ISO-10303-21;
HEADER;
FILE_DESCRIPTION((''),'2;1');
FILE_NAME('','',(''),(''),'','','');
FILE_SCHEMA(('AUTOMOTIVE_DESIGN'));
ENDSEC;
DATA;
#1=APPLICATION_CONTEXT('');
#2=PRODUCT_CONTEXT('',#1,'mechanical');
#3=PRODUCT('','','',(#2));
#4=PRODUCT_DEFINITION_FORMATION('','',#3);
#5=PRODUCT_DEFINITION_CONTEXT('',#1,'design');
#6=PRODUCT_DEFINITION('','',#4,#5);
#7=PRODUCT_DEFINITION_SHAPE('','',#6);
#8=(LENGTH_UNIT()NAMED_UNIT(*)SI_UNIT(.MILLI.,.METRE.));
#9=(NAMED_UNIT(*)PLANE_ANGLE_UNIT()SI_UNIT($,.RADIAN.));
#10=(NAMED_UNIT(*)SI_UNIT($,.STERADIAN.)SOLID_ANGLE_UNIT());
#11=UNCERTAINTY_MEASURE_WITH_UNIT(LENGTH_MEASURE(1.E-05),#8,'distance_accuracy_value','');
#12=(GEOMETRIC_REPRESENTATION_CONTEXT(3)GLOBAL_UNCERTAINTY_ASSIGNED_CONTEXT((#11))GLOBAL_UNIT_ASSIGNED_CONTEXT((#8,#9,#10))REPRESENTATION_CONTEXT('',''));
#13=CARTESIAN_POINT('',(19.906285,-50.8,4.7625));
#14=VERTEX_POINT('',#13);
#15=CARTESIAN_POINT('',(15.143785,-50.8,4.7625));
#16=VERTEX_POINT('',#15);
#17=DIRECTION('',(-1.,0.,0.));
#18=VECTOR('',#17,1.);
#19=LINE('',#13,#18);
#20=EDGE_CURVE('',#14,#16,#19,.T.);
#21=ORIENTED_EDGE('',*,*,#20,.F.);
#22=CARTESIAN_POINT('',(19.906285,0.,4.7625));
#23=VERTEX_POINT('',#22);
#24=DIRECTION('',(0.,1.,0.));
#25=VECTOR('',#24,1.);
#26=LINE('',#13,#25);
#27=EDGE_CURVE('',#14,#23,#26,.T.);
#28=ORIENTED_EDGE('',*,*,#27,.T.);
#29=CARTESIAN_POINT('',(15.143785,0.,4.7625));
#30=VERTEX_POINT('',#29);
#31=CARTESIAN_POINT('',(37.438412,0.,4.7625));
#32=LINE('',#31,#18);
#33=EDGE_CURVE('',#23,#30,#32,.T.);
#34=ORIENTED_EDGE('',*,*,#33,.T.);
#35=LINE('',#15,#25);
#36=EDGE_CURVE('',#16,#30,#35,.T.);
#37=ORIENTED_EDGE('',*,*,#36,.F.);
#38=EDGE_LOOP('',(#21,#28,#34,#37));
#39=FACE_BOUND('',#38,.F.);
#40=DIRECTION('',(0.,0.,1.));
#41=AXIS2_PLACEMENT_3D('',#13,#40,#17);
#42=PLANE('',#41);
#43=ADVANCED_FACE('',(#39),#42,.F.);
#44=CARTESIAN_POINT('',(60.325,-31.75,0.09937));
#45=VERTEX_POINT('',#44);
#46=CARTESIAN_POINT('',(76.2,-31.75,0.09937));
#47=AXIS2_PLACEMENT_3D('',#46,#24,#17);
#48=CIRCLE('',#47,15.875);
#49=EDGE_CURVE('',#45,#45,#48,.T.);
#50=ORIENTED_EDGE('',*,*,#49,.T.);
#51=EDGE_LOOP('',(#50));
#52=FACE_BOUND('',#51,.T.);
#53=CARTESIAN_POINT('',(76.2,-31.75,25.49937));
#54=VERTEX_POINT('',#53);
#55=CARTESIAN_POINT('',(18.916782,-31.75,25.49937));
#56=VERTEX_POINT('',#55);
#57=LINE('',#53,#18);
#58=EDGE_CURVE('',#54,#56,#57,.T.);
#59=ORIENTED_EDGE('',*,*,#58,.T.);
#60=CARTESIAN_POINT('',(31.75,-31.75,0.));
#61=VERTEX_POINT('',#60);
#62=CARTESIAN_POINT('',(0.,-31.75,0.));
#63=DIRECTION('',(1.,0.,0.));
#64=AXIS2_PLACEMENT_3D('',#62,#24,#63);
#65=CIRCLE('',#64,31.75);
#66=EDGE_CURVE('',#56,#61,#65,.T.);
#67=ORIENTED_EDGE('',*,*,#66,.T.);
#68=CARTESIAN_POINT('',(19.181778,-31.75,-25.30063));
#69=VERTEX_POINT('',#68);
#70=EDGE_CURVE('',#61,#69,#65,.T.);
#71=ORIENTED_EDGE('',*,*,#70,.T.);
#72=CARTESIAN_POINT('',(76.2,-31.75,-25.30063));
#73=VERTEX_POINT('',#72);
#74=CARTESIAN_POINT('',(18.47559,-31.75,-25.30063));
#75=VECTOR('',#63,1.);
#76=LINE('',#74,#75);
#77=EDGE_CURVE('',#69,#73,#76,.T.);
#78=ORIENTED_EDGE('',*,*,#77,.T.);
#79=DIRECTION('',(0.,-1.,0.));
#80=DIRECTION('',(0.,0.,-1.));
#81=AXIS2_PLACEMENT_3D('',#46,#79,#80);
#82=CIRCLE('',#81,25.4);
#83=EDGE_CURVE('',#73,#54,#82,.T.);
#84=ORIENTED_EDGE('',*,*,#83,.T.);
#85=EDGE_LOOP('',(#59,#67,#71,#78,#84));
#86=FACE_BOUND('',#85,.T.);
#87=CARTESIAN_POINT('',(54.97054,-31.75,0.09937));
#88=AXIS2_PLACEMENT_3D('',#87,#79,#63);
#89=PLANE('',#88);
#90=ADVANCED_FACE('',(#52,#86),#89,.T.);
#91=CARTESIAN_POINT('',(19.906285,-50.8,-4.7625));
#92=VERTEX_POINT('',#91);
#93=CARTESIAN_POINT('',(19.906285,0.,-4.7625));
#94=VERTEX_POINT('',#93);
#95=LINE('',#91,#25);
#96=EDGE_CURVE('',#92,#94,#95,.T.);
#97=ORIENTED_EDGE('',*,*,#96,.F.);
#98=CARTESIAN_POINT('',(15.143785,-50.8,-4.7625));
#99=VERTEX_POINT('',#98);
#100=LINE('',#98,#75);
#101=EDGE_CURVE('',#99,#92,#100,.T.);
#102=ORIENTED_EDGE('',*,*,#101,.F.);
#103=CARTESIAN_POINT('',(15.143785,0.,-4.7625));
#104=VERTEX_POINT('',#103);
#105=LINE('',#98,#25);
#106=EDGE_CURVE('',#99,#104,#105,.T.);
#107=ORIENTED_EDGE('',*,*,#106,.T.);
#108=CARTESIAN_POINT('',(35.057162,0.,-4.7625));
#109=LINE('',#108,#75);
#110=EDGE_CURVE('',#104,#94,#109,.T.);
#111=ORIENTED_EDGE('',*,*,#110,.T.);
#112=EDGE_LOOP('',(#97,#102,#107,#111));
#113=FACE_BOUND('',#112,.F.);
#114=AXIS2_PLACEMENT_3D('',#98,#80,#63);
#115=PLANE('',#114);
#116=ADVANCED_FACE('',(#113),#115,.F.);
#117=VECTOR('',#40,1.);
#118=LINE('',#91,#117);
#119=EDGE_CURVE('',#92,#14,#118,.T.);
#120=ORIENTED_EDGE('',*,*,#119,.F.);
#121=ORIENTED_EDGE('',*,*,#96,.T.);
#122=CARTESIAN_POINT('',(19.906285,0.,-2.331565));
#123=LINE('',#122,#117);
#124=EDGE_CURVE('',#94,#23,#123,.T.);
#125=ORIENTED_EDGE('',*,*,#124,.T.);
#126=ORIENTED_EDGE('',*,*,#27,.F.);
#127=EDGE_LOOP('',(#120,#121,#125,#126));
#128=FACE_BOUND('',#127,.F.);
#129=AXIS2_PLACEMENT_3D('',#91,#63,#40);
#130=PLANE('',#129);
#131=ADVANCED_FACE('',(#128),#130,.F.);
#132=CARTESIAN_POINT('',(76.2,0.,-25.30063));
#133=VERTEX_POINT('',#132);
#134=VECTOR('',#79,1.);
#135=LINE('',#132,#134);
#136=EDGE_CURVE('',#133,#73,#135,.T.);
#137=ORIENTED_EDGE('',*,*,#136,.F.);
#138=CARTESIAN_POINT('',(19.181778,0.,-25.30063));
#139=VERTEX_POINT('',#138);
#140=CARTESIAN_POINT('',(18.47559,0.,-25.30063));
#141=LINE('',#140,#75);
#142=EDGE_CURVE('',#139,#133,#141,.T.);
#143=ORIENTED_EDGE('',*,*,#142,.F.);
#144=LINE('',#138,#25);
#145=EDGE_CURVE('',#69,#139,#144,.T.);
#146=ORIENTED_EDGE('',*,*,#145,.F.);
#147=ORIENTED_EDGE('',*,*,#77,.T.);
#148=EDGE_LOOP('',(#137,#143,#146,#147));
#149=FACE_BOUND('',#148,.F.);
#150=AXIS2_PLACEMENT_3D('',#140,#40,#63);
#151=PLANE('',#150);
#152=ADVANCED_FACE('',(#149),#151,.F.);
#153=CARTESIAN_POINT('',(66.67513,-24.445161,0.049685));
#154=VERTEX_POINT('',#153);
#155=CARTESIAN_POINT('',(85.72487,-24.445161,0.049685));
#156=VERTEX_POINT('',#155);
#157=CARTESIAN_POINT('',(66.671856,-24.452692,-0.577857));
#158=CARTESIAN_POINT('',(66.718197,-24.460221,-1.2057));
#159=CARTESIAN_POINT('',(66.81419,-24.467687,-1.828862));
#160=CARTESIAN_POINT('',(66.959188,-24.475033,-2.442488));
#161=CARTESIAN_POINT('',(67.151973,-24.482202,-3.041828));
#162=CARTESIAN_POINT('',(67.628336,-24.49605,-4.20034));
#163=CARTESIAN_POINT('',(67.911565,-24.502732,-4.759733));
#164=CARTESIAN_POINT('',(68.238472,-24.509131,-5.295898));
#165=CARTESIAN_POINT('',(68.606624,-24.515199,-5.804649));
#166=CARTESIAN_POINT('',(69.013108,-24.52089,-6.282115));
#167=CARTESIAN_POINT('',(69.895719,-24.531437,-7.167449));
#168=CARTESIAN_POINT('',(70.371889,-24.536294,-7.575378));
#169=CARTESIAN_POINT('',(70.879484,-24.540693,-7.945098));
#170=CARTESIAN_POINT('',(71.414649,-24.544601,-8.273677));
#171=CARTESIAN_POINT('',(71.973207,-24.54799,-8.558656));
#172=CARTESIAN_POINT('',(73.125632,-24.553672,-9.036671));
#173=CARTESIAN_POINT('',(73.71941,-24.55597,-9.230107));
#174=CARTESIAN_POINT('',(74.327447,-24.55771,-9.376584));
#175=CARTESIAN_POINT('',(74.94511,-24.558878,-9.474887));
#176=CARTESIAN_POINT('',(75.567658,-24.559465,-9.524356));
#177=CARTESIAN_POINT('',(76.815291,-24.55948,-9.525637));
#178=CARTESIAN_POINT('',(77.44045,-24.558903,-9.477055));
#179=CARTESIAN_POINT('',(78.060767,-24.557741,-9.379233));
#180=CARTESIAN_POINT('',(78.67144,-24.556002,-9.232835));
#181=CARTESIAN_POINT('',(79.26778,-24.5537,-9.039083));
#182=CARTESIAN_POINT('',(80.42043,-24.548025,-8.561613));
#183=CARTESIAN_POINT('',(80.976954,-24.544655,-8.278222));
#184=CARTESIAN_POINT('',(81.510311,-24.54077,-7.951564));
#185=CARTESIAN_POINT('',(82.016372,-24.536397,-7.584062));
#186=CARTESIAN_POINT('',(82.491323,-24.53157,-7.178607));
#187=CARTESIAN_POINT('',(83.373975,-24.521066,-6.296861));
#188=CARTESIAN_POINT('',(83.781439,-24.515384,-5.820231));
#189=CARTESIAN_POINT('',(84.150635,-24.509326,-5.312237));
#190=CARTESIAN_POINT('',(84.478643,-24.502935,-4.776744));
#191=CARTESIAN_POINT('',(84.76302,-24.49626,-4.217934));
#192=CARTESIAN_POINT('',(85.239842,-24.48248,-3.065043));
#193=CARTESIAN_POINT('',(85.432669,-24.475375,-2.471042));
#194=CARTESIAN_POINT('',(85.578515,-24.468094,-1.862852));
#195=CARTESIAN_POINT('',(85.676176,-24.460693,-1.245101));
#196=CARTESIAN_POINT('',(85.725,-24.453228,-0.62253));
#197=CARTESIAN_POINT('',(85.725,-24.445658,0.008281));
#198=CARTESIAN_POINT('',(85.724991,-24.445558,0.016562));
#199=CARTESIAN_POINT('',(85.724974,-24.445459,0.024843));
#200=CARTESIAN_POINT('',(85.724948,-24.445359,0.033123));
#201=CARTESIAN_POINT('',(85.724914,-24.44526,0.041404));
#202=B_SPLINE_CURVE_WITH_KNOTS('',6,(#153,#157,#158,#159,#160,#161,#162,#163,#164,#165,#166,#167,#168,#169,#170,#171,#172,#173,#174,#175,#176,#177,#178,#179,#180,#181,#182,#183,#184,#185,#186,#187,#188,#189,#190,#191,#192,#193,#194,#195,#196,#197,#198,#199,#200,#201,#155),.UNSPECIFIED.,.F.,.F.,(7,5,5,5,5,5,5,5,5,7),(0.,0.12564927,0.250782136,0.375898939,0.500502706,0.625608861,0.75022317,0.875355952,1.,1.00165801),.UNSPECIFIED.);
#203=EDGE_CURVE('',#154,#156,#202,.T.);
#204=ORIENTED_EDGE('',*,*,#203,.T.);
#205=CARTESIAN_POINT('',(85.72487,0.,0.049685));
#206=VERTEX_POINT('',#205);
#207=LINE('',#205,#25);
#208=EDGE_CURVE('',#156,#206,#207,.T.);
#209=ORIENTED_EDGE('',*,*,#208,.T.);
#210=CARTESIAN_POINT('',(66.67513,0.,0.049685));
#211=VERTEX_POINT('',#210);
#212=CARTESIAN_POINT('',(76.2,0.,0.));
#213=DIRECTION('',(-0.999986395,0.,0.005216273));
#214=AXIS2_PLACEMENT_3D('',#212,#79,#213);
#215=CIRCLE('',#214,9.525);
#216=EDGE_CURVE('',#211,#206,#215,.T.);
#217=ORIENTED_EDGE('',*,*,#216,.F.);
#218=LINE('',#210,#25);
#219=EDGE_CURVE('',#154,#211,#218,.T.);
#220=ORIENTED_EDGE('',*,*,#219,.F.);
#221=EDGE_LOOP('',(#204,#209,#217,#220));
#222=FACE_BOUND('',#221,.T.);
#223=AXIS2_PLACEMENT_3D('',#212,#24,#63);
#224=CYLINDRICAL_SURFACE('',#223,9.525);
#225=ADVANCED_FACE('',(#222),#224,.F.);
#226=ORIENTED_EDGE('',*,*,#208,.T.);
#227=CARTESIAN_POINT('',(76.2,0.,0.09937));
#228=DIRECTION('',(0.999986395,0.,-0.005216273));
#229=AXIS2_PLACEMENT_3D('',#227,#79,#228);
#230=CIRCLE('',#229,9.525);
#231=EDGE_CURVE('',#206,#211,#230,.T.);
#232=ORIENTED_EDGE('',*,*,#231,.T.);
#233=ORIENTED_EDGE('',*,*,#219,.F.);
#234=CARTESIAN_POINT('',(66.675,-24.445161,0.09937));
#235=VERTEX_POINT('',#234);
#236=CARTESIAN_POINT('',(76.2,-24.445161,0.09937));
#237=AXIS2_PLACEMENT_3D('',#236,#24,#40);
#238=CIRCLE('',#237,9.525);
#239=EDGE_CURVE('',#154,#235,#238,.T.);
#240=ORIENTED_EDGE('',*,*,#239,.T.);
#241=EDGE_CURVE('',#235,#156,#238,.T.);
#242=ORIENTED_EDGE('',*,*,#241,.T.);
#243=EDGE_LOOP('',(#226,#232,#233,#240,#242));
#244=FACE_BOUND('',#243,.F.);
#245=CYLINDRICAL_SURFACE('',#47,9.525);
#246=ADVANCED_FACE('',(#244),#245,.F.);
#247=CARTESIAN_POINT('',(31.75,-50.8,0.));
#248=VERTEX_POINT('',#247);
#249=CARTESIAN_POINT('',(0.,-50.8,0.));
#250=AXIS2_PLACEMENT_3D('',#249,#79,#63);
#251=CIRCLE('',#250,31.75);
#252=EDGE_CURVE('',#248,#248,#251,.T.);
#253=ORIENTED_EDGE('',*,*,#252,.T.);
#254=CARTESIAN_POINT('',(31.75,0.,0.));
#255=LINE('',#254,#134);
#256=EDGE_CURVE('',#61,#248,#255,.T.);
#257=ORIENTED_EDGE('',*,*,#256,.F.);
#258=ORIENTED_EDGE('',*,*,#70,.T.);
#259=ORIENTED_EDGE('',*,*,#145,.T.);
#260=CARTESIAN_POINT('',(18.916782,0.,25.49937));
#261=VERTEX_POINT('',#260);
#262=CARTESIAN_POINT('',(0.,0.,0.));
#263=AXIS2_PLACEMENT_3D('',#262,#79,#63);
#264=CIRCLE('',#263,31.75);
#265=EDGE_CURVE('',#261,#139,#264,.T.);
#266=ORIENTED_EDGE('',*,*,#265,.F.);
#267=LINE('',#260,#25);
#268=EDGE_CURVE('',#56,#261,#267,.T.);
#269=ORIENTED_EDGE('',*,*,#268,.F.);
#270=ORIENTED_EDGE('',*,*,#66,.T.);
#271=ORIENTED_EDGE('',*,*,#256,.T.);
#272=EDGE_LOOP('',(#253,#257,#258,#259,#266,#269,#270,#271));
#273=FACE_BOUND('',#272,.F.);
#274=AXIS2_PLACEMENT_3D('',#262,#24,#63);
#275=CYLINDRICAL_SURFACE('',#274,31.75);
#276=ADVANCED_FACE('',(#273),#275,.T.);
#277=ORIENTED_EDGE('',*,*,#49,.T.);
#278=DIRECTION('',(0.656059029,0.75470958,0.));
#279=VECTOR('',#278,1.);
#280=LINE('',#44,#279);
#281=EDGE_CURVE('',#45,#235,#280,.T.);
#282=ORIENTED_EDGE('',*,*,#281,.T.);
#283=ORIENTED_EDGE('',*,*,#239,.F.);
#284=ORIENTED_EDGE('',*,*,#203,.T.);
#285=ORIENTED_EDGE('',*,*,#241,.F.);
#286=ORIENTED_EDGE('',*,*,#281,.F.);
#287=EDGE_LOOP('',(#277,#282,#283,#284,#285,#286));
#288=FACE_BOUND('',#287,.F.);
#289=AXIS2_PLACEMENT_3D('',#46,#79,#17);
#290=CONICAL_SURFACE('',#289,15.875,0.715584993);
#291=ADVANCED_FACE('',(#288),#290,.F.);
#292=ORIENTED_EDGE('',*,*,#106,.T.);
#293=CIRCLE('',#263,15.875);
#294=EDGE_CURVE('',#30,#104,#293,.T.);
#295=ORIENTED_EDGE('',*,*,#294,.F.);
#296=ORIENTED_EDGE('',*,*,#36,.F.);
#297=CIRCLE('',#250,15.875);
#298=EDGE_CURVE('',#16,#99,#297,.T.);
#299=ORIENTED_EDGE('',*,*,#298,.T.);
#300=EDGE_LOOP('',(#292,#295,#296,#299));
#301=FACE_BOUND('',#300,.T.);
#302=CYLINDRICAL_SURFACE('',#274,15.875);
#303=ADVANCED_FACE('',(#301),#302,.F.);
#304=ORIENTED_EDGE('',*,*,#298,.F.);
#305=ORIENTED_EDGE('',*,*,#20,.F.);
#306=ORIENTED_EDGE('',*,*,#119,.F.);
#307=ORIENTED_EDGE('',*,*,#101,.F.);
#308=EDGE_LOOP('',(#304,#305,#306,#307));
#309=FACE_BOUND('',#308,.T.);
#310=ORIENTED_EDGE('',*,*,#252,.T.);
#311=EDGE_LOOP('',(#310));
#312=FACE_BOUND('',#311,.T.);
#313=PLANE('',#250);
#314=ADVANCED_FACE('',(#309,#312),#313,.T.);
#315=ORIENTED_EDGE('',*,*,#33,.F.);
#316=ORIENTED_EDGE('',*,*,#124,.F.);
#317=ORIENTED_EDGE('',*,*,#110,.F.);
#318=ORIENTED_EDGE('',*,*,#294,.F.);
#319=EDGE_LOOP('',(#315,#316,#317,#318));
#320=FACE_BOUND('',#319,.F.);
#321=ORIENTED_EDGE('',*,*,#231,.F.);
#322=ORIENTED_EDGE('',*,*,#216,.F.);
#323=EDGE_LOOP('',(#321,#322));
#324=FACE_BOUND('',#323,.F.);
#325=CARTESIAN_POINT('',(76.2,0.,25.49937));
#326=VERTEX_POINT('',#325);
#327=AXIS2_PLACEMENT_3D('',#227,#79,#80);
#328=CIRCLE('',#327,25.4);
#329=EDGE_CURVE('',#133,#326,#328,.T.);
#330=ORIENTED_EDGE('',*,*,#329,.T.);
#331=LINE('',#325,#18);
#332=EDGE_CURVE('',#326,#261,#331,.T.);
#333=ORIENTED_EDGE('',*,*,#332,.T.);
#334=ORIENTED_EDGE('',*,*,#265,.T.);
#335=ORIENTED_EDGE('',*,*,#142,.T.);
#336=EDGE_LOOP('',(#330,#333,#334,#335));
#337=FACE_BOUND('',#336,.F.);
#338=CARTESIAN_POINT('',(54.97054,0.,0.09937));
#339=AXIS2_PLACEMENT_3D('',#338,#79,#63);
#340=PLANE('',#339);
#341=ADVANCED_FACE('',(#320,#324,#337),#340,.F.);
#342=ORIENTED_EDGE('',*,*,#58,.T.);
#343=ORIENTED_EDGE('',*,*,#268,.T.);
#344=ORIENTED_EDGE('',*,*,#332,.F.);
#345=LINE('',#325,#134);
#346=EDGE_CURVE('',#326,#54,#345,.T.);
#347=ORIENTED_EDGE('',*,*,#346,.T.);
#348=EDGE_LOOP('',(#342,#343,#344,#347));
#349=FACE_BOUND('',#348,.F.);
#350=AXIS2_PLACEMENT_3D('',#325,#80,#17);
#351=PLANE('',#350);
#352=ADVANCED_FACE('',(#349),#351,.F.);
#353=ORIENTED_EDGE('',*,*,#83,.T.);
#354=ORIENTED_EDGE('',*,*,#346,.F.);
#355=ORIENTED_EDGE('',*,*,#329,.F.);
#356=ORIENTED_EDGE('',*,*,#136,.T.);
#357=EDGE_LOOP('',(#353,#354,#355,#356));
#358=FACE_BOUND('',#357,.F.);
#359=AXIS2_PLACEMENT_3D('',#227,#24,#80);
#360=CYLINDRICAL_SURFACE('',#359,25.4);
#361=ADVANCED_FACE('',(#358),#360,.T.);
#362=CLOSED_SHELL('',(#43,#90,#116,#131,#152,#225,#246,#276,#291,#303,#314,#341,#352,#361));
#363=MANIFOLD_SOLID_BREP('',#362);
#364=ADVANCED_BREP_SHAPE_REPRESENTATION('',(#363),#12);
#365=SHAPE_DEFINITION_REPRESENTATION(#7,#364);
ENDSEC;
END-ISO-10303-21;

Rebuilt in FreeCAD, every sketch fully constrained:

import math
import FreeCAD as App
import Part
import Sketcher

V = App.Vector
Q = App.Units.Quantity

doc = App.newDocument("Part")
body = doc.addObject("PartDesign::Body", "Body")

sketch1 = body.newObject("Sketcher::SketchObject", "Sketch")
sketch1.AttachmentSupport = (doc.getObject("XZ_Plane"), [""])
sketch1.MapMode = "FlatFace"
sketch1.addGeometry([
    Part.Circle(V(0, 0, 0), V(0, 0, 1), 32),
    Part.Circle(V(0, 0, 0), V(0, 0, 1), 16),
], False)
sketch1.addConstraint([
    Sketcher.Constraint("Coincident", 0, 3, -1, 1),
    Sketcher.Constraint("Coincident", 1, 3, -1, 1),
    Sketcher.Constraint("Diameter", 0, Q("2.5 in")),
    Sketcher.Constraint("Diameter", 1, Q("1.25 in")),
])
pad1 = body.newObject("PartDesign::Pad", "Pad")
pad1.Profile = sketch1
pad1.Length = Q("2 in")

sketch2 = body.newObject("Sketcher::SketchObject", "Sketch001")
sketch2.AttachmentSupport = (doc.getObject("XZ_Plane"), [""])
sketch2.MapMode = "FlatFace"
sketch2.addGeometry([
    Part.LineSegment(V(76, 25, 0), V(18, 25, 0)),
    Part.LineSegment(V(18, 25, 0), V(18, -25, 0)),
    Part.LineSegment(V(18, -25, 0), V(76, -25, 0)),
    Part.ArcOfCircle(Part.Circle(V(76, 0, 0), V(0, 0, 1), 25), math.radians(-90), math.radians(90)),
    Part.Circle(V(76, 0, 0), V(0, 0, 1), 10),
], False)
sketch2.addConstraint([
    Sketcher.Constraint("Coincident", 0, 2, 1, 1),
    Sketcher.Constraint("Coincident", 1, 2, 2, 1),
    Sketcher.Constraint("Tangent", 2, 2, 3, 1),
    Sketcher.Constraint("Tangent", 3, 2, 0, 1),
    Sketcher.Constraint("Horizontal", 0),
    Sketcher.Constraint("Vertical", 1),
    Sketcher.Constraint("Horizontal", 2),
    Sketcher.Constraint("PointOnObject", 4, 3, -1),
    Sketcher.Constraint("Vertical", 3, 3, 4, 3),
    Sketcher.Constraint("Radius", 3, Q("1 in")),
    Sketcher.Constraint("Diameter", 4, Q("0.75 in")),
    Sketcher.Constraint("DistanceX", -1, 1, 3, 3, Q("3 in")),
    Sketcher.Constraint("DistanceX", 0, 2, 0, 1, 57.72441),
    Sketcher.Constraint("DistanceY", -1, 1, 3, 3, 0.09937),
])
pad2 = body.newObject("PartDesign::Pad", "Pad001")
pad2.Profile = sketch2
pad2.Length = Q("1.25 in")

sketch3 = body.newObject("Sketcher::SketchObject", "Sketch002")
sketch3.AttachmentSupport = (doc.getObject("XZ_Plane"), [""])
sketch3.MapMode = "FlatFace"
sketch3.AttachmentOffset = App.Placement(V(0, 0, 1.25 * 25.4), App.Rotation())
sketch3.addGeometry(Part.Circle(V(76, 0, 0), V(0, 0, 1), 10), False)
sketch3.addConstraint([
    Sketcher.Constraint("Diameter", 0, Q("0.75 in")),
    Sketcher.Constraint("DistanceX", -1, 1, 0, 3, Q("3 in")),
    Sketcher.Constraint("DistanceY", -1, 1, 0, 3, 0.09937),
])
doc.recompute()
hole = body.newObject("PartDesign::Hole", "Hole")
hole.Profile = sketch3
hole.ThreadType = "None"
hole.Diameter = Q("0.75 in")
hole.DepthType = "ThroughAll"
hole.HoleCutType = "Countersink"
hole.HoleCutDiameter = Q("1.25 in")
hole.HoleCutCountersinkAngle = 82

sketch4 = body.newObject("Sketcher::SketchObject", "Sketch003")
sketch4.AttachmentSupport = (doc.getObject("XZ_Plane"), [""])
sketch4.MapMode = "FlatFace"
sketch4.AttachmentOffset = App.Placement(V(0, 0, 2 * 25.4), App.Rotation())
sketch4.addGeometry([
    Part.ArcOfCircle(Part.Circle(V(0, 0, 0), V(0, 0, 1), 15.9), math.radians(-17.46), math.radians(0)),
    Part.LineSegment(V(15.1, -4.8, 0), V(19.9, -4.8, 0)),
    Part.LineSegment(V(19.9, -4.8, 0), V(19.9, 4.8, 0)),
    Part.LineSegment(V(19.9, 4.8, 0), V(15.1, 4.8, 0)),
    Part.ArcOfCircle(Part.Circle(V(0, 0, 0), V(0, 0, 1), 15.9), math.radians(0), math.radians(17.46)),
], False)
sketch4.addConstraint([
    Sketcher.Constraint("Coincident", 0, 1, 1, 1),
    Sketcher.Constraint("Coincident", 1, 2, 2, 1),
    Sketcher.Constraint("Coincident", 2, 2, 3, 1),
    Sketcher.Constraint("Coincident", 3, 2, 4, 2),
    Sketcher.Constraint("Tangent", 4, 1, 0, 2),
    Sketcher.Constraint("Horizontal", 1),
    Sketcher.Constraint("Vertical", 2),
    Sketcher.Constraint("Horizontal", 3),
    Sketcher.Constraint("Equal", 0, 4),
    Sketcher.Constraint("Symmetric", 0, 1, 3, 2, -1),
    Sketcher.Constraint("PointOnObject", 4, 1, -1),
    Sketcher.Constraint("DistanceX", 1, 1, 1, 2, Q("0.1875 in")),
    Sketcher.Constraint("DistanceY", 2, 1, 2, 2, Q("0.375 in")),
    Sketcher.Constraint("DistanceX", -1, 1, 4, 1, Q("0.625 in")),
    Sketcher.Constraint("Radius", 0, 15.875047),
])
pocket1 = body.newObject("PartDesign::Pocket", "Pocket")
pocket1.Profile = sketch4
pocket1.Length = Q("3 in")

doc.recompute()
